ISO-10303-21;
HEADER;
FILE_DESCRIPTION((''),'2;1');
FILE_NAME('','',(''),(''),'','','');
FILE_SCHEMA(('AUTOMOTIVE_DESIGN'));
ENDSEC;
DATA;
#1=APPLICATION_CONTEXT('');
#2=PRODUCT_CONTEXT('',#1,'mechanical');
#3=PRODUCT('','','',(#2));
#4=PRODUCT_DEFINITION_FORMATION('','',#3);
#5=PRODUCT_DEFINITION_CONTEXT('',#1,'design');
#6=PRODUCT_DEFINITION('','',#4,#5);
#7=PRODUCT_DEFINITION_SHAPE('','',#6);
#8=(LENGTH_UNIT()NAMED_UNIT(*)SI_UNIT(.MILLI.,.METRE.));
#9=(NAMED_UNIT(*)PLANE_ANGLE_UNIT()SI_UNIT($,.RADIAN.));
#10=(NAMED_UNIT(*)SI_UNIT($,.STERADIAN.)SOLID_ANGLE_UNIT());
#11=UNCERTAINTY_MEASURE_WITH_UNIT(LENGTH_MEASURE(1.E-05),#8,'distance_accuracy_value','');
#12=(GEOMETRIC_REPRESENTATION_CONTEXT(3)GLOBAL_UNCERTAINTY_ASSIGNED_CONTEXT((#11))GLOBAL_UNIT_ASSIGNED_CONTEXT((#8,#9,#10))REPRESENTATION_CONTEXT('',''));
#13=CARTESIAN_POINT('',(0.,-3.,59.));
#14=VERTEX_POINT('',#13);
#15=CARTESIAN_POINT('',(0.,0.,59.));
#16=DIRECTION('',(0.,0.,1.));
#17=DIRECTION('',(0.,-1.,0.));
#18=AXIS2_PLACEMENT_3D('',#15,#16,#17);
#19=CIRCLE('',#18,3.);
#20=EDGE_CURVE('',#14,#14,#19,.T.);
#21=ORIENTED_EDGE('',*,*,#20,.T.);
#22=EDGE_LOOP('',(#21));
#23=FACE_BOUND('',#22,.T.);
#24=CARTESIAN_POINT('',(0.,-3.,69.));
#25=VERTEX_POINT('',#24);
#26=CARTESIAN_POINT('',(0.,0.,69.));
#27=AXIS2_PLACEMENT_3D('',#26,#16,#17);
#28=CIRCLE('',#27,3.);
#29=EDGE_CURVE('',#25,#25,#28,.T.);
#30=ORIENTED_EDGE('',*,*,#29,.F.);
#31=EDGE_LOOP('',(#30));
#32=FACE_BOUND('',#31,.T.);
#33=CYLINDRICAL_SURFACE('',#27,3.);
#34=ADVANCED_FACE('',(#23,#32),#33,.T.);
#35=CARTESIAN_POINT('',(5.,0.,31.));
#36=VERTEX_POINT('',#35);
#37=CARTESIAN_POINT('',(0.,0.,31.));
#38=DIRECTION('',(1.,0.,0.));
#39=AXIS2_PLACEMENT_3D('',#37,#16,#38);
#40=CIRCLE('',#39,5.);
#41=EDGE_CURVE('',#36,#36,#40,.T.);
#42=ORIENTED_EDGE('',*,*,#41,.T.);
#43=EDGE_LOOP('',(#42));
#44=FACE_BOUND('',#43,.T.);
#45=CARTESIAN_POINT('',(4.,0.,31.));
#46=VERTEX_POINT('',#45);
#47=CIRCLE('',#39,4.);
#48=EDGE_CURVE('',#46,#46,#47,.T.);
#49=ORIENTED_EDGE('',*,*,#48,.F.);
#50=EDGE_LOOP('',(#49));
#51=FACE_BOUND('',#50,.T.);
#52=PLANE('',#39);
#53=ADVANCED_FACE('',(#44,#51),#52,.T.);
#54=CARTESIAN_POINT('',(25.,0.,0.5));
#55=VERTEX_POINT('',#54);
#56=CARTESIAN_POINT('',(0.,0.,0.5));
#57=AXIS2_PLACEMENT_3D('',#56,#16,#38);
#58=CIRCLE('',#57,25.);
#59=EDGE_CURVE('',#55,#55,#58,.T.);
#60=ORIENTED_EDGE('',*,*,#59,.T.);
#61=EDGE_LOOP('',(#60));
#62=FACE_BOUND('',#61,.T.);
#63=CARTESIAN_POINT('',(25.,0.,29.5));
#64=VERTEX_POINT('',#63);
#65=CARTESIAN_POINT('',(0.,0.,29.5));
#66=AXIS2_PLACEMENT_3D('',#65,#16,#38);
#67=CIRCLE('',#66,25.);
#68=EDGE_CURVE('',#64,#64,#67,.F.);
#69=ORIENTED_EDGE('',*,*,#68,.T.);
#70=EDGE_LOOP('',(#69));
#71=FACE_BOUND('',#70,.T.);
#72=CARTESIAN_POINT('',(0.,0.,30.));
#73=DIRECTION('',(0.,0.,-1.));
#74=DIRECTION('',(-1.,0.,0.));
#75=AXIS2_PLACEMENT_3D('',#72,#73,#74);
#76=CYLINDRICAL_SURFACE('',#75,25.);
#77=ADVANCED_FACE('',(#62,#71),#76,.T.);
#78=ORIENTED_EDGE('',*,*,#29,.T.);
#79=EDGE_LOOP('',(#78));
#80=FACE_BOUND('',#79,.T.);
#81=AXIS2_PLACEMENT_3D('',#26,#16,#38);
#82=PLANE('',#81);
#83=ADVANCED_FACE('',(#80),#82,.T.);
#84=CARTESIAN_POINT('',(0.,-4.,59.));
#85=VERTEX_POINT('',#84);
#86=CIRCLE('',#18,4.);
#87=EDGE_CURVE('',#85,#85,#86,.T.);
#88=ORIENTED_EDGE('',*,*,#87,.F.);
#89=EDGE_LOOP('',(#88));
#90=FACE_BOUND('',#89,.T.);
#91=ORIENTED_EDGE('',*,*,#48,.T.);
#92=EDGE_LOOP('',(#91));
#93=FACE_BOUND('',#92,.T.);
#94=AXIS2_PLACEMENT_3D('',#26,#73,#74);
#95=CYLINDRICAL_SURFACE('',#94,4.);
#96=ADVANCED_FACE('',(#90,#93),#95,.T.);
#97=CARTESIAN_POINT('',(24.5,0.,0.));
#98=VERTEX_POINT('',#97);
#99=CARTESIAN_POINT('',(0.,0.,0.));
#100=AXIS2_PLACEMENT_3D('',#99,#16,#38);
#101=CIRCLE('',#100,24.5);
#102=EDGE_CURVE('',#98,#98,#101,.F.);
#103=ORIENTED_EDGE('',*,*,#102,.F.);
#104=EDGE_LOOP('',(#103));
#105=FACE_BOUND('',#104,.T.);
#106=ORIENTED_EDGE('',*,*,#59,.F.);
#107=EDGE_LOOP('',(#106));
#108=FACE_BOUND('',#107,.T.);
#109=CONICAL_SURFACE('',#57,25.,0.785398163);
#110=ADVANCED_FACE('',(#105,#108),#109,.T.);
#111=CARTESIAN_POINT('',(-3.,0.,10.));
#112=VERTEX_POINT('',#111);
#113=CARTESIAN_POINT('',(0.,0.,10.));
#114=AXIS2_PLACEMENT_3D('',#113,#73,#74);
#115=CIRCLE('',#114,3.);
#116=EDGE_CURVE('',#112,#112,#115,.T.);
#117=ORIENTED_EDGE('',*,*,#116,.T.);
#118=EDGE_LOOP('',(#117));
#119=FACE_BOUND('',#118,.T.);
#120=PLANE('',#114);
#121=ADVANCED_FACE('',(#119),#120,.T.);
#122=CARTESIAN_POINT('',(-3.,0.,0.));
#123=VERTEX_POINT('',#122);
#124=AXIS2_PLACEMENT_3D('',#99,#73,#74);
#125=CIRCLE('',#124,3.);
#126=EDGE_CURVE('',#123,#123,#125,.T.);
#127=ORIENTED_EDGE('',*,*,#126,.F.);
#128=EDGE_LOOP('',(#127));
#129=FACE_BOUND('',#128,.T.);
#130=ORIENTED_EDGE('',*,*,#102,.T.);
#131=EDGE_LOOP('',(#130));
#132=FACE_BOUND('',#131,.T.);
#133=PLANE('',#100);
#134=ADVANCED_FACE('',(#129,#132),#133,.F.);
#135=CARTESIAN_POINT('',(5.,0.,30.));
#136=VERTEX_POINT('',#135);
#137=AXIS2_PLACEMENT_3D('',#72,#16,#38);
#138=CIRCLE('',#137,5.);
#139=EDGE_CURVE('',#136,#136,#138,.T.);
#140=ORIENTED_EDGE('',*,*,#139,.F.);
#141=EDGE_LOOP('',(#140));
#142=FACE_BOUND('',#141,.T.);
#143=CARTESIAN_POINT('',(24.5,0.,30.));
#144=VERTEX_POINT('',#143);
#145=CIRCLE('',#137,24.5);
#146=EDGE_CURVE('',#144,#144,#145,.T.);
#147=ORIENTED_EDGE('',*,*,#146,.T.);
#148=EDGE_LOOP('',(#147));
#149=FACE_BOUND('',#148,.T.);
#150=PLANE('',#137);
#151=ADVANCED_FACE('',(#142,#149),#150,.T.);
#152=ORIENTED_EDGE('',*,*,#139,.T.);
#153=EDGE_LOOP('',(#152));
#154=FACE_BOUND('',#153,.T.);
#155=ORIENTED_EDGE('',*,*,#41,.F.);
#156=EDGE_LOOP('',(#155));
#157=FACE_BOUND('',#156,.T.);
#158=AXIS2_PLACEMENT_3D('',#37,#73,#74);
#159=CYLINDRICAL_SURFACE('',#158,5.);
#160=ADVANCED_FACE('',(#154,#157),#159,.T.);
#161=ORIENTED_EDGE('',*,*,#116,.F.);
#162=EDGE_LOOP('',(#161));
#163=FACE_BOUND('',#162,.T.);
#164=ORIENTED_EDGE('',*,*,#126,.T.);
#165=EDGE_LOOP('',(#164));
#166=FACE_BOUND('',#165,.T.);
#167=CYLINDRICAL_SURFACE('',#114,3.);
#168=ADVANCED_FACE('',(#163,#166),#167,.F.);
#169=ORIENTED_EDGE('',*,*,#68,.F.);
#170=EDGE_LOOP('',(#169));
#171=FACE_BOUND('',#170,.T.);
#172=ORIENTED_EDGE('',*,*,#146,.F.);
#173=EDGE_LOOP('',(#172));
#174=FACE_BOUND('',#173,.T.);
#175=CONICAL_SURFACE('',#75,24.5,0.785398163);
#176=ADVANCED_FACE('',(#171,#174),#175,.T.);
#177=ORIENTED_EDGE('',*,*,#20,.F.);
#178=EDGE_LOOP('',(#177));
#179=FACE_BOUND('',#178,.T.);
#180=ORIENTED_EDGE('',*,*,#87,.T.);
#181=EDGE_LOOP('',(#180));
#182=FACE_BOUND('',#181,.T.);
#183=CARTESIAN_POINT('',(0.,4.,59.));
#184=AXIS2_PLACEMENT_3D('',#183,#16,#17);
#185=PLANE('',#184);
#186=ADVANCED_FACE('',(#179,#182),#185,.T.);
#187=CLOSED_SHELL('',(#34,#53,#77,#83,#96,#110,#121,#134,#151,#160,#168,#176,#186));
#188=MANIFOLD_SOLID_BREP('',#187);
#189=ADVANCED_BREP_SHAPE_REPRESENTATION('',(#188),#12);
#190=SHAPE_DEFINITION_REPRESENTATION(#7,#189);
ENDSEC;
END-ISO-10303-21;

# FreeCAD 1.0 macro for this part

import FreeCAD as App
import Part
import Sketcher
Q = App.Units.Quantity


def edges_at(feature, points):
    """Names of the edges that pass closest to the given points."""
    edges = feature.Shape.Edges
    near = lambda p: min(range(len(edges)), key=lambda i: edges[i].distToShape(Part.Vertex(*p))[0])
    return sorted({f"Edge{near(p) + 1}" for p in points})

doc = App.newDocument("Part")
body = doc.addObject("PartDesign::Body", "Body")

sketch1 = body.newObject("Sketcher::SketchObject", "Sketch")
sketch1.AttachmentSupport = (doc.getObject("XY_Plane"), [""])
sketch1.MapMode = "FlatFace"
sketch1.addGeometry(Part.Circle(App.Vector(0, 0, 0), App.Vector(0, 0, 1), 25), False)
sketch1.addConstraint([
    Sketcher.Constraint("Coincident", 0, 3, -1, 1),
    Sketcher.Constraint("Diameter", 0, Q("50 mm")),
])
pad1 = body.newObject("PartDesign::Pad", "Pad")
pad1.Profile = sketch1
pad1.Length = 30

sketch2 = body.newObject("Sketcher::SketchObject", "Sketch001")
sketch2.AttachmentSupport = (doc.getObject("XY_Plane"), [""])
sketch2.MapMode = "FlatFace"
sketch2.AttachmentOffset = App.Placement(App.Vector(0, 0, 30), App.Rotation())
sketch2.addGeometry(Part.Circle(App.Vector(0, 0, 0), App.Vector(0, 0, 1), 4), False)
sketch2.addConstraint([
    Sketcher.Constraint("Coincident", 0, 3, -1, 1),
    Sketcher.Constraint("Diameter", 0, Q("8 mm")),
])
pad2 = body.newObject("PartDesign::Pad", "Pad001")
pad2.Profile = sketch2
pad2.Length = 39

sketch3 = body.newObject("Sketcher::SketchObject", "Sketch002")
sketch3.AttachmentSupport = (doc.getObject("XY_Plane"), [""])
sketch3.MapMode = "FlatFace"
sketch3.AttachmentOffset = App.Placement(App.Vector(0, 0, 30), App.Rotation())
sketch3.addGeometry(Part.Circle(App.Vector(0, 0, 0), App.Vector(0, 0, 1), 5), False)
sketch3.addConstraint([
    Sketcher.Constraint("Coincident", 0, 3, -1, 1),
    Sketcher.Constraint("Diameter", 0, Q("10 mm")),
])
pad3 = body.newObject("PartDesign::Pad", "Pad002")
pad3.Profile = sketch3
pad3.Length = 1

sketch4 = body.newObject("Sketcher::SketchObject", "Sketch003")
sketch4.AttachmentSupport = (doc.getObject("XY_Plane"), [""])
sketch4.MapMode = "FlatFace"
sketch4.addGeometry(Part.Circle(App.Vector(0, 0, 0), App.Vector(0, 0, 1), 3), False)
sketch4.addConstraint([
    Sketcher.Constraint("Coincident", 0, 3, -1, 1),
    Sketcher.Constraint("Diameter", 0, Q("6 mm")),
])
pocket1 = body.newObject("PartDesign::Pocket", "Pocket")
pocket1.Profile = sketch4
pocket1.Length = 10
pocket1.Reversed = True
doc.recompute()

chamfer = body.newObject("PartDesign::Chamfer", "Chamfer")
chamfer.Base = (pocket1, edges_at(pocket1, [(-25, 0, 0), (-25, 0, 30), (-4, 0, 69)]))
chamfer.Size = 0.5

sketch5 = body.newObject("Sketcher::SketchObject", "Sketch004")
sketch5.AttachmentSupport = (doc.getObject("YZ_Plane"), [""])
sketch5.MapMode = "FlatFace"
sketch5.addGeometry([
    Part.LineSegment(App.Vector(4, 69, 0), App.Vector(3, 69, 0)),
    Part.LineSegment(App.Vector(3, 69, 0), App.Vector(3, 59, 0)),
    Part.LineSegment(App.Vector(3, 59, 0), App.Vector(4, 59, 0)),
    Part.LineSegment(App.Vector(4, 59, 0), App.Vector(4, 69, 0)),
], False)
sketch5.addConstraint([
    Sketcher.Constraint("Coincident", 0, 2, 1, 1),
    Sketcher.Constraint("Coincident", 1, 2, 2, 1),
    Sketcher.Constraint("Coincident", 2, 2, 3, 1),
    Sketcher.Constraint("Coincident", 3, 2, 0, 1),
    Sketcher.Constraint("Horizontal", 0),
    Sketcher.Constraint("Vertical", 1),
    Sketcher.Constraint("Horizontal", 2),
    Sketcher.Constraint("Vertical", 3),
    Sketcher.Constraint("DistanceX", 0, 2, 0, 1, Q("1 mm")),
    Sketcher.Constraint("DistanceY", 1, 2, 1, 1, Q("10 mm")),
    Sketcher.Constraint("DistanceX", -1, 1, 0, 2, Q("3 mm")),
    Sketcher.Constraint("DistanceY", -1, 1, 0, 2, Q("69 mm")),
])
groove = body.newObject("PartDesign::Groove", "Groove")
groove.Profile = sketch5
groove.ReferenceAxis = (sketch5, ["V_Axis"])
groove.Angle = 360

doc.recompute()
